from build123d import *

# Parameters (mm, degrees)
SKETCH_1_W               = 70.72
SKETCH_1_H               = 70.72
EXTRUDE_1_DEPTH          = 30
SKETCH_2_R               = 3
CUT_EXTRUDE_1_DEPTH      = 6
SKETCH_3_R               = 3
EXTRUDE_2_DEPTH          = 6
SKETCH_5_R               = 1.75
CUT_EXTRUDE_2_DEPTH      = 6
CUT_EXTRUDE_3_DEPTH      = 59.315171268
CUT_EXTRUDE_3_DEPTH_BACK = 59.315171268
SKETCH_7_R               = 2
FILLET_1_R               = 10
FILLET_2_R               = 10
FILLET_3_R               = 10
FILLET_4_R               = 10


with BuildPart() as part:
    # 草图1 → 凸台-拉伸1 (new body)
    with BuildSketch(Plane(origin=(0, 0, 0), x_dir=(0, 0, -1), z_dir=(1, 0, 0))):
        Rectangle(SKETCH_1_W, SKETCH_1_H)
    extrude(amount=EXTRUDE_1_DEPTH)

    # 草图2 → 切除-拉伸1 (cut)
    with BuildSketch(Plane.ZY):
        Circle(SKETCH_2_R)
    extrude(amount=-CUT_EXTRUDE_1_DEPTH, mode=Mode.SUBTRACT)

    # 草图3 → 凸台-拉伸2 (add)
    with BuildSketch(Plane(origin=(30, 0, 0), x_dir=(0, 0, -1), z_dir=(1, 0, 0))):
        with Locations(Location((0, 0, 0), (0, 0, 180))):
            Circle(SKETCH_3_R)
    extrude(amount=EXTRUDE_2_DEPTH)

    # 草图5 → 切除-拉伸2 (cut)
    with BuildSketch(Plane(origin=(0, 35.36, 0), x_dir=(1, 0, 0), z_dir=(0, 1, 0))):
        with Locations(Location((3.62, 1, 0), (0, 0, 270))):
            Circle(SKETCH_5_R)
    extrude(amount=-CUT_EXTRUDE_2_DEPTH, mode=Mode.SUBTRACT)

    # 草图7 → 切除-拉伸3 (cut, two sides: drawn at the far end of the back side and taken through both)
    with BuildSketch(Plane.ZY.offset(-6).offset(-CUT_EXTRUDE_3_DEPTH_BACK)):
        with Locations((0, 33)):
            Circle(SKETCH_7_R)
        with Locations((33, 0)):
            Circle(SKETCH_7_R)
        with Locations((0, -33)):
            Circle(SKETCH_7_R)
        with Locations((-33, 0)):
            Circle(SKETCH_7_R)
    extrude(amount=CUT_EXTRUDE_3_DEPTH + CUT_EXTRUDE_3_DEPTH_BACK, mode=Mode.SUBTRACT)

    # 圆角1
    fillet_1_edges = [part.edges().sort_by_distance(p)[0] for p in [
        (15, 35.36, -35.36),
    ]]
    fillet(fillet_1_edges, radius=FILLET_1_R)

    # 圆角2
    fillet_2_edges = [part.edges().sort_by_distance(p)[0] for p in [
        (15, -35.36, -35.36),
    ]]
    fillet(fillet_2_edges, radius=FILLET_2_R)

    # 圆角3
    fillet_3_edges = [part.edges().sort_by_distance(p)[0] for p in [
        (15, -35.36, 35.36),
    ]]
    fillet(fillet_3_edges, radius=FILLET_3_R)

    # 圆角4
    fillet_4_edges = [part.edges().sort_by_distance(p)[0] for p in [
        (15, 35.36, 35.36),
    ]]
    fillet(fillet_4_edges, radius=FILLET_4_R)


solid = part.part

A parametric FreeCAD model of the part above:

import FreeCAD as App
import Part
import Sketcher
from FreeCAD import Vector
Q = App.Units.Quantity


def edges_at(feature, points):
    """Names of the edges that pass closest to the given points."""
    edges = feature.Shape.Edges
    near = lambda p: min(range(len(edges)), key=lambda i: edges[i].distToShape(Part.Vertex(*p))[0])
    return sorted({f"Edge{near(p) + 1}" for p in points})

doc = App.newDocument("Part")
body = doc.addObject("PartDesign::Body", "Body")

# Sketch on YZ plane
sketch1 = doc.addObject("Sketcher::SketchObject", "Sketch")
body.addObject(sketch1)
sketch1.AttachmentSupport = (doc.YZ_Plane, [""])
sketch1.MapMode = "FlatFace"
sketch1.addGeometry([
    Part.LineSegment(Vector(35, 35, 0), Vector(-35, 35, 0)),
    Part.LineSegment(Vector(-35, 35, 0), Vector(-35, -35, 0)),
    Part.LineSegment(Vector(-35, -35, 0), Vector(35, -35, 0)),
    Part.LineSegment(Vector(35, -35, 0), Vector(35, 35, 0)),
], False)
sketch1.addConstraint([
    Sketcher.Constraint("Coincident", 0, 2, 1, 1),
    Sketcher.Constraint("Coincident", 1, 2, 2, 1),
    Sketcher.Constraint("Coincident", 2, 2, 3, 1),
    Sketcher.Constraint("Coincident", 3, 2, 0, 1),
    Sketcher.Constraint("Horizontal", 0),
    Sketcher.Constraint("Vertical", 1),
    Sketcher.Constraint("Horizontal", 2),
    Sketcher.Constraint("Vertical", 3),
    Sketcher.Constraint("Symmetric", 0, 2, 2, 2, -1, 1),
    Sketcher.Constraint("Equal", 2, 1),
    Sketcher.Constraint("DistanceX", 0, 2, 0, 1, Q("70.72 mm")),
])
pad1 = doc.addObject("PartDesign::Pad", "Pad")
body.addObject(pad1)
pad1.Profile = sketch1
pad1.Length = 30

# Sketch on YZ plane
sketch2 = doc.addObject("Sketcher::SketchObject", "Sketch001")
body.addObject(sketch2)
sketch2.AttachmentSupport = (doc.YZ_Plane, [""])
sketch2.MapMode = "FlatFace"
sketch2.addGeometry(Part.Circle(Vector(0, 0, 0), Vector(0, 0, 1), 3), False)
sketch2.addConstraint([
    Sketcher.Constraint("Coincident", 0, 3, -1, 1),
    Sketcher.Constraint("Diameter", 0, Q("6 mm")),
])
pocket1 = doc.addObject("PartDesign::Pocket", "Pocket")
body.addObject(pocket1)
pocket1.Profile = sketch2
pocket1.Length = 6
pocket1.Reversed = True

# Sketch on YZ plane
sketch3 = doc.addObject("Sketcher::SketchObject", "Sketch002")
body.addObject(sketch3)
sketch3.AttachmentSupport = (doc.YZ_Plane, [""])
sketch3.MapMode = "FlatFace"
sketch3.AttachmentOffset = App.Placement(Vector(0, 0, 30), App.Rotation())
sketch3.addGeometry(Part.Circle(Vector(0, 0, 0), Vector(0, 0, 1), 3), False)
sketch3.addConstraint([
    Sketcher.Constraint("Coincident", 0, 3, -1, 1),
    Sketcher.Constraint("Diameter", 0, Q("6 mm")),
])
pad2 = doc.addObject("PartDesign::Pad", "Pad001")
body.addObject(pad2)
pad2.Profile = sketch3
pad2.Length = 6

# Sketch on XZ plane
sketch4 = doc.addObject("Sketcher::SketchObject", "Sketch003")
body.addObject(sketch4)
sketch4.AttachmentSupport = (doc.XZ_Plane, [""])
sketch4.MapMode = "FlatFace"
sketch4.AttachmentOffset = App.Placement(Vector(0, 0, -35.36), App.Rotation())
sketch4.addGeometry(Part.Circle(Vector(3.6, -1, 0), Vector(0, 0, 1), 1.8), False)
sketch4.addConstraint([
    Sketcher.Constraint("Diameter", 0, Q("3.5 mm")),
    Sketcher.Constraint("DistanceY", 0, 3, -1, 1, Q("1 mm")),
    Sketcher.Constraint("DistanceX", -1, 1, 0, 3, Q("3.62 mm")),
])
pocket2 = doc.addObject("PartDesign::Pocket", "Pocket001")
body.addObject(pocket2)
pocket2.Profile = sketch4
pocket2.Length = 6
pocket2.Reversed = True

# Sketch on YZ plane
sketch5 = doc.addObject("Sketcher::SketchObject", "Sketch004")
body.addObject(sketch5)
sketch5.AttachmentSupport = (doc.YZ_Plane, [""])
sketch5.MapMode = "FlatFace"
sketch5.AttachmentOffset = App.Placement(Vector(0, 0, 6), App.Rotation())
sketch5.addGeometry([
    Part.Circle(Vector(33, 0, 0), Vector(0, 0, 1), 2),
    Part.Circle(Vector(0, 33, 0), Vector(0, 0, 1), 2),
    Part.Circle(Vector(-33, 0, 0), Vector(0, 0, 1), 2),
    Part.Circle(Vector(0, -33, 0), Vector(0, 0, 1), 2),
], False)
sketch5.addConstraint([
    Sketcher.Constraint("Equal", 0, 1),
    Sketcher.Constraint("Equal", 1, 2),
    Sketcher.Constraint("Equal", 2, 3),
    Sketcher.Constraint("Symmetric", 0, 3, 2, 3, -1, 1),
    Sketcher.Constraint("Symmetric", 1, 3, 3, 3, -1, 1),
    Sketcher.Constraint("PointOnObject", 0, 3, -1),
    Sketcher.Constraint("PointOnObject", 1, 3, -2),
    Sketcher.Constraint("Diameter", 0, Q("4 mm")),
    Sketcher.Constraint("DistanceX", -1, 1, 0, 3, Q("33 mm")),
    Sketcher.Constraint("DistanceY", -1, 1, 1, 3, Q("33 mm")),
])
pocket3 = doc.addObject("PartDesign::Pocket", "Pocket002")
body.addObject(pocket3)
pocket3.Profile = sketch5
pocket3.Type = "ThroughAll"
pocket3.Midplane = True
doc.recompute()

fillet = doc.addObject("PartDesign::Fillet", "Fillet")
body.addObject(fillet)
fillet.Base = (pocket3, edges_at(pocket3, [(15, 35.36, -35.36)]))
fillet.Radius = 10
doc.recompute()

fillet2 = doc.addObject("PartDesign::Fillet", "Fillet001")
body.addObject(fillet2)
fillet2.Base = (fillet, edges_at(fillet, [(15, -35.36, -35.36)]))
fillet2.Radius = 10
doc.recompute()

fillet3 = doc.addObject("PartDesign::Fillet", "Fillet002")
body.addObject(fillet3)
fillet3.Base = (fillet2, edges_at(fillet2, [(15, -35.36, 35.36)]))
fillet3.Radius = 10
doc.recompute()

fillet4 = doc.addObject("PartDesign::Fillet", "Fillet003")
body.addObject(fillet4)
fillet4.Base = (fillet3, edges_at(fillet3, [(15, 35.36, 35.36)]))
fillet4.Radius = 10

doc.recompute()
